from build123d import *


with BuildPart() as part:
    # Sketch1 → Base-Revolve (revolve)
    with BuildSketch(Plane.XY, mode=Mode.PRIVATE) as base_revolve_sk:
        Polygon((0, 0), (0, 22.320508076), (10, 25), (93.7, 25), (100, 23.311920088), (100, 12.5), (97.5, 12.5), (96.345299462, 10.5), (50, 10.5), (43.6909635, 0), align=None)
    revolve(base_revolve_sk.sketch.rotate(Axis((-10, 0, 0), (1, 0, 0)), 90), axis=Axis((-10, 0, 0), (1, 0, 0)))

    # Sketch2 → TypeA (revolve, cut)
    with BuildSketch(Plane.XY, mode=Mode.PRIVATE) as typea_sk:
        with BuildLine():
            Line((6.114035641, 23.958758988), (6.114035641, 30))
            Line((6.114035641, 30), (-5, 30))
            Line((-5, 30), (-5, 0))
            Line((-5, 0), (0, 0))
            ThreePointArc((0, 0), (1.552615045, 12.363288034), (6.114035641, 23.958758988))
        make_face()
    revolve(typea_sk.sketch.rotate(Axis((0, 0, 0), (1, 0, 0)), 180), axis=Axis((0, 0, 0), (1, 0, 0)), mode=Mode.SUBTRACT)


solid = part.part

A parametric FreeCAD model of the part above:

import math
import FreeCAD as App
import Part
import Sketcher
from FreeCAD import Vector
Q = App.Units.Quantity

doc = App.newDocument("Part")
body = doc.addObject("PartDesign::Body", "Body")

# Sketch on XY plane
sketch1 = doc.addObject("Sketcher::SketchObject", "Sketch")
body.addObject(sketch1)
sketch1.AttachmentSupport = (doc.XY_Plane, [""])
sketch1.MapMode = "FlatFace"
sketch1.addGeometry(Part.LineSegment(Vector(0, 22.320508, 0), Vector(0, 0, 0)), False)
sketch1.addGeometry(Part.LineSegment(Vector(0, 0, 0), Vector(43.690964, 0, 0)), False)
sketch1.addGeometry(Part.LineSegment(Vector(43.690964, 0, 0), Vector(50, 10.5, 0)), False)
sketch1.addGeometry(Part.LineSegment(Vector(50, 10.5, 0), Vector(96.345299, 10.5, 0)), False)
sketch1.addGeometry(Part.LineSegment(Vector(96.345299, 10.5, 0), Vector(97.5, 12.5, 0)), False)
sketch1.addGeometry(Part.LineSegment(Vector(97.5, 12.5, 0), Vector(100, 12.5, 0)), False)
sketch1.addGeometry(Part.LineSegment(Vector(100, 12.5, 0), Vector(100, 23.31192, 0)), False)
sketch1.addGeometry(Part.LineSegment(Vector(100, 23.31192, 0), Vector(93.7, 25, 0)), False)
sketch1.addGeometry(Part.LineSegment(Vector(93.7, 25, 0), Vector(10, 25, 0)), False)
sketch1.addGeometry(Part.LineSegment(Vector(10, 25, 0), Vector(0, 22.320508, 0)), False)
sketch1.addConstraint(Sketcher.Constraint("Coincident", 0, 2, 1, 1))
sketch1.addConstraint(Sketcher.Constraint("Coincident", 1, 2, 2, 1))
sketch1.addConstraint(Sketcher.Constraint("Coincident", 2, 2, 3, 1))
sketch1.addConstraint(Sketcher.Constraint("Coincident", 3, 2, 4, 1))
sketch1.addConstraint(Sketcher.Constraint("Coincident", 4, 2, 5, 1))
sketch1.addConstraint(Sketcher.Constraint("Coincident", 5, 2, 6, 1))
sketch1.addConstraint(Sketcher.Constraint("Coincident", 6, 2, 7, 1))
sketch1.addConstraint(Sketcher.Constraint("Coincident", 7, 2, 8, 1))
sketch1.addConstraint(Sketcher.Constraint("Coincident", 8, 2, 9, 1))
sketch1.addConstraint(Sketcher.Constraint("Coincident", 9, 2, 0, 1))
sketch1.addConstraint(Sketcher.Constraint("Vertical", 0))
sketch1.addConstraint(Sketcher.Constraint("Horizontal", 1))
sketch1.addConstraint(Sketcher.Constraint("Horizontal", 3))
sketch1.addConstraint(Sketcher.Constraint("Horizontal", 5))
sketch1.addConstraint(Sketcher.Constraint("Vertical", 6))
sketch1.addConstraint(Sketcher.Constraint("Horizontal", 8))
sketch1.addConstraint(Sketcher.Constraint("Coincident", 0, 2, -1, 1))
sketch1.addConstraint(Sketcher.Constraint("Angle", 2, Q("59 deg")))
sketch1.addConstraint(Sketcher.Constraint("Angle", 4, Q("60 deg")))
sketch1.addConstraint(Sketcher.Constraint("Angle", 7, Q("165 deg")))
sketch1.addConstraint(Sketcher.Constraint("Angle", 9, Q("-165 deg")))
sketch1.addConstraint(Sketcher.Constraint("DistanceX", 5, 1, 5, 2, Q("2.5 mm")))
sketch1.addConstraint(Sketcher.Constraint("DistanceX", 8, 2, 8, 1, Q("83.7 mm")))
sketch1.addConstraint(Sketcher.Constraint("DistanceX", -1, 1, 2, 2, Q("50 mm")))
sketch1.addConstraint(Sketcher.Constraint("DistanceX", -1, 1, 5, 2, Q("100 mm")))
sketch1.addConstraint(Sketcher.Constraint("DistanceY", -1, 1, 7, 2, Q("25 mm")))
sketch1.addConstraint(Sketcher.Constraint("DistanceX", -1, 1, 8, 2, Q("10 mm")))
sketch1.addConstraint(Sketcher.Constraint("DistanceY", 3, 2, 4, 2, Q("2 mm")))
sketch1.addConstraint(Sketcher.Constraint("DistanceY", -1, 1, 2, 2, Q("10.5 mm")))
revolution = doc.addObject("PartDesign::Revolution", "Revolution")
body.addObject(revolution)
revolution.Profile = sketch1
revolution.ReferenceAxis = (sketch1, ["H_Axis"])
revolution.Angle = 360

# Sketch on XY plane
sketch2 = doc.addObject("Sketcher::SketchObject", "Sketch001")
body.addObject(sketch2)
sketch2.AttachmentSupport = (doc.XY_Plane, [""])
sketch2.MapMode = "FlatFace"
sketch2.addGeometry(Part.LineSegment(Vector(6.114036, 23.958759, 0), Vector(6.114036, 30, 0)), False)
sketch2.addGeometry(Part.LineSegment(Vector(6.114036, 30, 0), Vector(-5, 30, 0)), False)
sketch2.addGeometry(Part.LineSegment(Vector(-5, 30, 0), Vector(-5, 0, 0)), False)
sketch2.addGeometry(Part.LineSegment(Vector(-5, 0, 0), Vector(0, 0, 0)), False)
sketch2.addGeometry(Part.ArcOfCircle(Part.Circle(Vector(50, 0, 0), Vector(0, 0, 1), 50), math.radians(151.368454), math.radians(180)), False)
sketch2.addConstraint(Sketcher.Constraint("Coincident", 0, 2, 1, 1))
sketch2.addConstraint(Sketcher.Constraint("Coincident", 1, 2, 2, 1))
sketch2.addConstraint(Sketcher.Constraint("Coincident", 2, 2, 3, 1))
sketch2.addConstraint(Sketcher.Constraint("Coincident", 3, 2, 4, 2))
sketch2.addConstraint(Sketcher.Constraint("Coincident", 4, 1, 0, 1))
sketch2.addConstraint(Sketcher.Constraint("Vertical", 0))
sketch2.addConstraint(Sketcher.Constraint("Horizontal", 1))
sketch2.addConstraint(Sketcher.Constraint("Vertical", 2))
sketch2.addConstraint(Sketcher.Constraint("Horizontal", 3))
sketch2.addConstraint(Sketcher.Constraint("Coincident", 3, 2, -1, 1))
sketch2.addConstraint(Sketcher.Constraint("PointOnObject", 4, 3, -1))
sketch2.addConstraint(Sketcher.Constraint("Radius", 4, Q("50 mm")))
sketch2.addConstraint(Sketcher.Constraint("DistanceX", 3, 1, 3, 2, Q("5 mm")))
sketch2.addConstraint(Sketcher.Constraint("DistanceY", 2, 2, 2, 1, Q("30 mm")))
sketch2.addConstraint(Sketcher.Constraint("DistanceY", 0, 1, 0, 2, Q("6.041241 mm")))
groove = doc.addObject("PartDesign::Groove", "Groove")
body.addObject(groove)
groove.Profile = sketch2
groove.ReferenceAxis = (sketch2, ["H_Axis"])
groove.Angle = 360

doc.recompute()
